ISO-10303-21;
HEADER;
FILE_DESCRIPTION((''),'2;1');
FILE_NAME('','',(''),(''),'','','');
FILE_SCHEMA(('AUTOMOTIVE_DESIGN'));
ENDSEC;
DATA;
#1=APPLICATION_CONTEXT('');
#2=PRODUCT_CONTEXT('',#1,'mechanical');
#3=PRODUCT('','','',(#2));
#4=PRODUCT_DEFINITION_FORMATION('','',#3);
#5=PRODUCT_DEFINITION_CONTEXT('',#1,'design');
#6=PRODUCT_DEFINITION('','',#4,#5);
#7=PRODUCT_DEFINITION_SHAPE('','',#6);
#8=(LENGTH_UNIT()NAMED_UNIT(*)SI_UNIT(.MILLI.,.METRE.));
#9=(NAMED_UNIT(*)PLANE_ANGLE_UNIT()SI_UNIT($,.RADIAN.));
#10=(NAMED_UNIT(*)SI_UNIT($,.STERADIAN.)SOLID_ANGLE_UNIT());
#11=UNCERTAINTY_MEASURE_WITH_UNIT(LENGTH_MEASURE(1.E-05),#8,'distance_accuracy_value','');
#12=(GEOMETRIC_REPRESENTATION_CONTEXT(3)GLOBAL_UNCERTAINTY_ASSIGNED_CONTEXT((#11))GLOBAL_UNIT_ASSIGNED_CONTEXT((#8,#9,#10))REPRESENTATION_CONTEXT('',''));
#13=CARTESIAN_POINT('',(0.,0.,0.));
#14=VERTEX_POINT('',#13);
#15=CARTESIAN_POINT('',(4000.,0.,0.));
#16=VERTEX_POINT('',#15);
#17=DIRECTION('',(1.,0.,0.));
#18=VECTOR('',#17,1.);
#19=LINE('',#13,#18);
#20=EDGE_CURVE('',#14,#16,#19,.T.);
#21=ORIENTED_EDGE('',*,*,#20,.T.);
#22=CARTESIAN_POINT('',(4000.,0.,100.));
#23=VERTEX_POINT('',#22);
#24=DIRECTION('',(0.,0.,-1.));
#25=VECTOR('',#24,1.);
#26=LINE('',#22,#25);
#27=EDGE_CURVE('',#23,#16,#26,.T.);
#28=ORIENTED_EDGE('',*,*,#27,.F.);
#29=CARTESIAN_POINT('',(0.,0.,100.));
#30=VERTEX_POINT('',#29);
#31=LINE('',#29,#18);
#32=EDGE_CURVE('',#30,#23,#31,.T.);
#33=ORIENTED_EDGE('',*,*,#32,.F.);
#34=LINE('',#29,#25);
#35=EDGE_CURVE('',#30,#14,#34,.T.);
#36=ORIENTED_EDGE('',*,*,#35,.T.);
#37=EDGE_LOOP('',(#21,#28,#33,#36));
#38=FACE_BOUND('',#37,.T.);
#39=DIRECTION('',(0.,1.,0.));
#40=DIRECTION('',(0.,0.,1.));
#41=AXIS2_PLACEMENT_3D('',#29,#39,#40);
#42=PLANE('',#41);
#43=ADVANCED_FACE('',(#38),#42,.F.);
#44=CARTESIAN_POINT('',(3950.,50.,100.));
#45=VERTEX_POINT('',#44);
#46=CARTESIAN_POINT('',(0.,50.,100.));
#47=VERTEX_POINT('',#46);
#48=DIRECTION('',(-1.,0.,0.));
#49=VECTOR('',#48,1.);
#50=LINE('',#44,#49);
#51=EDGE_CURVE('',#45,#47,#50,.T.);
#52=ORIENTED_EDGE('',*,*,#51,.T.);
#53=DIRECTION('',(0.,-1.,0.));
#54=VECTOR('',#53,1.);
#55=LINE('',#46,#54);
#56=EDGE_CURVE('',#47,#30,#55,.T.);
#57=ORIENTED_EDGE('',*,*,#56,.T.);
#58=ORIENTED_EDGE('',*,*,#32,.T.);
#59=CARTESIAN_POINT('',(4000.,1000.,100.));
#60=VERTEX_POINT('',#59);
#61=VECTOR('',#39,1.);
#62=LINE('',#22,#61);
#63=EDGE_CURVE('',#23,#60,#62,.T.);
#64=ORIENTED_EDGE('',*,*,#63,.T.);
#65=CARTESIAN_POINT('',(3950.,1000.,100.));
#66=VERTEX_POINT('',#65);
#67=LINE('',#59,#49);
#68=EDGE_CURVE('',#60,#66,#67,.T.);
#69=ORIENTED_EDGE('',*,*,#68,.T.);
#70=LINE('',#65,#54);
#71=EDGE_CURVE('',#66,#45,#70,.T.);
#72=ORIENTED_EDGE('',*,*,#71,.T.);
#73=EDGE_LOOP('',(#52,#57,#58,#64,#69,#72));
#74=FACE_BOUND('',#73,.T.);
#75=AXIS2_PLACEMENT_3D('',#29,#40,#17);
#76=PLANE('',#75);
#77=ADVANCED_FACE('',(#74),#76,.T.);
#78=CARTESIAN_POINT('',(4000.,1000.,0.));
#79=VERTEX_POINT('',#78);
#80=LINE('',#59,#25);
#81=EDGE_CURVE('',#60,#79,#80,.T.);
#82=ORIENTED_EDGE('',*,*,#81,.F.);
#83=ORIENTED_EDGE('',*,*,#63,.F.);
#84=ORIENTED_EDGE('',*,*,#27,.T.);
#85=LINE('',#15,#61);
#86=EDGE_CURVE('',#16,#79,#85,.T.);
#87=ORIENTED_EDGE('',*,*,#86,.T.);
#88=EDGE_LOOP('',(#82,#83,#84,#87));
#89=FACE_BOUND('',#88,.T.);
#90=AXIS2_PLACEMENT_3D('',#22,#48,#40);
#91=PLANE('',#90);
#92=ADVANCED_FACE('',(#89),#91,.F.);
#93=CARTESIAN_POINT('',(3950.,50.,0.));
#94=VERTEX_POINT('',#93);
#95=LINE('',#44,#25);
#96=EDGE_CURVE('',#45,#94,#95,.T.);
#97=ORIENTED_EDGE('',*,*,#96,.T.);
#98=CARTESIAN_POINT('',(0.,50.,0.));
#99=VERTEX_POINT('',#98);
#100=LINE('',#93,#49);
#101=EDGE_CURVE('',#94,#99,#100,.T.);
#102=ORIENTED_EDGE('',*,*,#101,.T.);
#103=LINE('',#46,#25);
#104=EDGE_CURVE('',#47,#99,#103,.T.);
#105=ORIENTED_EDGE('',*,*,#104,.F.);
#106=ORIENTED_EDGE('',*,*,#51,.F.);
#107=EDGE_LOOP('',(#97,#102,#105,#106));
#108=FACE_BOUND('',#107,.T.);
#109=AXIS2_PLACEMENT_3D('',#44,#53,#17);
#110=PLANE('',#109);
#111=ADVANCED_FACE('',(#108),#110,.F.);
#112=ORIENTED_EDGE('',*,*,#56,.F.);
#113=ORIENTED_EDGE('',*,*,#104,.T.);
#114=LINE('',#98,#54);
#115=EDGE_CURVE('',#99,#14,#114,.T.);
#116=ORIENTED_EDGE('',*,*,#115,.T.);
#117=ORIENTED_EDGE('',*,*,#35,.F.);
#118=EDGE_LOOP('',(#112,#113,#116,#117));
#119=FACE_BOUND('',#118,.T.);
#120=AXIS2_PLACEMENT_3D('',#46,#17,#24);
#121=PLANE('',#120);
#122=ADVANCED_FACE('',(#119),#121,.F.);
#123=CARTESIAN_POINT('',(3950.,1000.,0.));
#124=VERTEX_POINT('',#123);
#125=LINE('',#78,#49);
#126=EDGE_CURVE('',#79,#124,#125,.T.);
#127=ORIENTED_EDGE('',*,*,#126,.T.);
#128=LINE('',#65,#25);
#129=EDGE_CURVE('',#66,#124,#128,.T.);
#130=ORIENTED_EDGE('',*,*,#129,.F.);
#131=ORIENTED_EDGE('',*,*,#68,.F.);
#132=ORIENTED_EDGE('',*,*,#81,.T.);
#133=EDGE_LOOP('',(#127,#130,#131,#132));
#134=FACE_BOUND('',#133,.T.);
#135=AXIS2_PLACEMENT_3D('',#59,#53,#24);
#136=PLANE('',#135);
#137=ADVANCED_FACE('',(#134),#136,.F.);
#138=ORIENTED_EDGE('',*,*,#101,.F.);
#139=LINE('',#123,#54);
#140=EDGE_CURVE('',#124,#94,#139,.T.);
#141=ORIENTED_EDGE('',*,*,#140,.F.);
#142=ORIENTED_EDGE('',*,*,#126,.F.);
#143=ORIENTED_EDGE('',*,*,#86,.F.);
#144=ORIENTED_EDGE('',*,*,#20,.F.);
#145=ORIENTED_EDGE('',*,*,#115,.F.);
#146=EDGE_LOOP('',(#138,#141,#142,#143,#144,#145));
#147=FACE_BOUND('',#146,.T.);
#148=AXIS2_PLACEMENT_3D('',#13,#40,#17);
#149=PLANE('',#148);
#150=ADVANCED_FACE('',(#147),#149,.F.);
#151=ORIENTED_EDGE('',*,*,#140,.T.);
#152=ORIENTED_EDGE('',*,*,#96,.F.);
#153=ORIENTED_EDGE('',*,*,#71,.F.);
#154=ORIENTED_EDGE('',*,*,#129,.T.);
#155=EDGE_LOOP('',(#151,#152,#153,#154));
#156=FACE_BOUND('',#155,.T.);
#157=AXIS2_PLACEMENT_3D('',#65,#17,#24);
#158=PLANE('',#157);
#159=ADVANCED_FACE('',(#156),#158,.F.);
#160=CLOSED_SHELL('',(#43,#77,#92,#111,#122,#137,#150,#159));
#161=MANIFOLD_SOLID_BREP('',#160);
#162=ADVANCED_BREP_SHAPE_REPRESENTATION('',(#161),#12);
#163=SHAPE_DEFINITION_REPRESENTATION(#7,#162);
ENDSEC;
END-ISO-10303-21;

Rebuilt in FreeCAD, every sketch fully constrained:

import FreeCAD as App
import Part
import Sketcher


def add_polygon(sketch, points):
    """Adds a closed chain of lines whose ends are joined by coincident constraints."""
    first, n = sketch.GeometryCount, len(points)
    for a, b in zip(points, points[1:] + points[:1]):
        sketch.addGeometry(Part.LineSegment(App.Vector(*a, 0), App.Vector(*b, 0)), False)
    for i in range(n):
        sketch.addConstraint(Sketcher.Constraint("Coincident", first + i, 2, first + (i + 1) % n, 1))

doc = App.newDocument("Part")
body = doc.addObject("PartDesign::Body", "Body")

# Sketch on XY plane
sketch1 = doc.addObject("Sketcher::SketchObject", "Sketch")
body.addObject(sketch1)
sketch1.AttachmentSupport = (doc.XY_Plane, [""])
sketch1.MapMode = "FlatFace"
add_polygon(sketch1, [(0, 0), (4000, 0), (4000, 1000), (3950, 1000), (3950, 50), (0, 50)])  # lines 0-5
sketch1.addConstraint(Sketcher.Constraint("Horizontal", 0))
sketch1.addConstraint(Sketcher.Constraint("Vertical", 1))
sketch1.addConstraint(Sketcher.Constraint("Horizontal", 2))
sketch1.addConstraint(Sketcher.Constraint("Vertical", 3))
sketch1.addConstraint(Sketcher.Constraint("Horizontal", 4))
sketch1.addConstraint(Sketcher.Constraint("Vertical", 5))
sketch1.addConstraint(Sketcher.Constraint("Coincident", 5, 2, -1, 1))
sketch1.addConstraint(Sketcher.Constraint("Equal", 2, 5))
sketch1.addConstraint(Sketcher.Constraint("DistanceX", 0, 1, 0, 2, 4000.0))
sketch1.addConstraint(Sketcher.Constraint("DistanceX", 2, 2, 2, 1, 50.0))
sketch1.addConstraint(Sketcher.Constraint("DistanceY", 1, 1, 1, 2, 1000.0))
pad1 = doc.addObject("PartDesign::Pad", "Pad")
body.addObject(pad1)
pad1.Profile = sketch1
pad1.Length = 100

doc.recompute()
